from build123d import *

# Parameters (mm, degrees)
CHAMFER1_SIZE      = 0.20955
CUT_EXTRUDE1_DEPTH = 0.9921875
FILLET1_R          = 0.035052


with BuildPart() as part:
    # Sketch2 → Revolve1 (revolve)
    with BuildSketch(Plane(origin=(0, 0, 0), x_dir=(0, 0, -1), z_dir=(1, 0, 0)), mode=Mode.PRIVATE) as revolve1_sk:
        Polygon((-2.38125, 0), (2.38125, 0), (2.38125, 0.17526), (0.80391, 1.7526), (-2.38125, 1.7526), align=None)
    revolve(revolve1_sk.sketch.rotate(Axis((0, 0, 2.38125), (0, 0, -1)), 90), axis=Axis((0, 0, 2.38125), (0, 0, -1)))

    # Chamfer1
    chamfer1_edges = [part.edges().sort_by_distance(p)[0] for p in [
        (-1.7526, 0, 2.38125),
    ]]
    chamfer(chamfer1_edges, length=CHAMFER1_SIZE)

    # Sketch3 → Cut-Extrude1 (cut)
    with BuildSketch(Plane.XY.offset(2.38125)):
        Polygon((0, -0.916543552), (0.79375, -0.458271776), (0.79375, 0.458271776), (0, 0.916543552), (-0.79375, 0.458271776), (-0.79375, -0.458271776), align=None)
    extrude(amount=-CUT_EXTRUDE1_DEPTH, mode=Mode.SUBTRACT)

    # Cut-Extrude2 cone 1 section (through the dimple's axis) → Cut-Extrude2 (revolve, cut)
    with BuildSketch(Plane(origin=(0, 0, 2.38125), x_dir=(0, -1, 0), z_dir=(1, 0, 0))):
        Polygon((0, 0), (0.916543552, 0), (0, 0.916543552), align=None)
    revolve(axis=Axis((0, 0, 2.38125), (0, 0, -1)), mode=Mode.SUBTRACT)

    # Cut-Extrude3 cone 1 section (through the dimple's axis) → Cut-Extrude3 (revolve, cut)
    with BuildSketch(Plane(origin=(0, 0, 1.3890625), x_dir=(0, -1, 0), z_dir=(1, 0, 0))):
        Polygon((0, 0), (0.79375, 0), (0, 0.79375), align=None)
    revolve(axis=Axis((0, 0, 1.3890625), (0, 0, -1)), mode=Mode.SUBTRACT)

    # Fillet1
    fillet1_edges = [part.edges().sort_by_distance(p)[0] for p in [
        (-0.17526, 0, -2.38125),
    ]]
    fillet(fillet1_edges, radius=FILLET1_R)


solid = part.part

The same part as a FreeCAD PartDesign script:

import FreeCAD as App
import Part
import Sketcher
from FreeCAD import Vector
Q = App.Units.Quantity


def edges_at(feature, points):
    """Names of the edges that pass closest to the given points."""
    edges = feature.Shape.Edges
    near = lambda p: min(range(len(edges)), key=lambda i: edges[i].distToShape(Part.Vertex(*p))[0])
    return sorted({f"Edge{near(p) + 1}" for p in points})


def add_polygon(sketch, points):
    """Adds a closed chain of lines whose ends are joined by coincident constraints."""
    first, n = sketch.GeometryCount, len(points)
    for a, b in zip(points, points[1:] + points[:1]):
        sketch.addGeometry(Part.LineSegment(App.Vector(*a, 0), App.Vector(*b, 0)), False)
    for i in range(n):
        sketch.addConstraint(Sketcher.Constraint("Coincident", first + i, 2, first + (i + 1) % n, 1))

doc = App.newDocument("Part")
body = doc.addObject("PartDesign::Body", "Body")

sketch1 = body.newObject("Sketcher::SketchObject", "Sketch")
sketch1.AttachmentSupport = (doc.getObject("YZ_Plane"), [""])
sketch1.MapMode = "FlatFace"
add_polygon(sketch1, [(0, 2.38), (0, -2.38), (0.18, -2.38), (1.75, -0.8), (1.75, 2.38)])
sketch1.addConstraint(Sketcher.Constraint("Vertical", 0))
sketch1.addConstraint(Sketcher.Constraint("Horizontal", 1))
sketch1.addConstraint(Sketcher.Constraint("Vertical", 3))
sketch1.addConstraint(Sketcher.Constraint("Horizontal", 4))
sketch1.addConstraint(Sketcher.Constraint("Symmetric", 0, 2, 4, 2, -1, 1))
sketch1.addConstraint(Sketcher.Constraint("Angle", 2, Q("45 deg")))
sketch1.addConstraint(Sketcher.Constraint("DistanceX", 4, 2, 4, 1, Q("0.069 in")))
sketch1.addConstraint(Sketcher.Constraint("DistanceY", 0, 2, 0, 1, Q("0.1875 in")))
sketch1.addConstraint(Sketcher.Constraint("DistanceX", 1, 1, 1, 2, Q("0.0069 in")))
revolution = body.newObject("PartDesign::Revolution", "Revolution")
revolution.Profile = sketch1
revolution.ReferenceAxis = (sketch1, ["V_Axis"])
revolution.Angle = 360
doc.recompute()

chamfer = body.newObject("PartDesign::Chamfer", "Chamfer")
chamfer.Base = (revolution, edges_at(revolution, [(-1.753, 0, 2.381)]))
chamfer.Size = 0.20955

sketch2 = body.newObject("Sketcher::SketchObject", "Sketch001")
sketch2.AttachmentSupport = (doc.getObject("XY_Plane"), [""])
sketch2.MapMode = "FlatFace"
sketch2.AttachmentOffset = App.Placement(Vector(0, 0, 0.09375 * 25.4), App.Rotation())
add_polygon(sketch2, [(0, -0.9), (0.8, -0.5), (0.8, 0.5), (0, 0.9), (-0.8, 0.5), (-0.8, -0.5)])
sketch2.addConstraint(Sketcher.Constraint("Vertical", 1))
sketch2.addConstraint(Sketcher.Constraint("Vertical", 4))
sketch2.addConstraint(Sketcher.Constraint("Symmetric", 0, 2, 3, 2, -1, 1))
sketch2.addConstraint(Sketcher.Constraint("Symmetric", 2, 2, 5, 2, -1, 1))
sketch2.addConstraint(Sketcher.Constraint("PointOnObject", 2, 2, -2))
sketch2.addConstraint(Sketcher.Constraint("Parallel", 2, 5))
sketch2.addConstraint(Sketcher.Constraint("Horizontal", 1, 2, 3, 2))
sketch2.addConstraint(Sketcher.Constraint("Angle", 0, Q("30 deg")))
sketch2.addConstraint(Sketcher.Constraint("DistanceX", -1, 1, 0, 2, Q("0.03125 in")))
sketch2.addConstraint(Sketcher.Constraint("DistanceY", 1, 1, 1, 2, Q("0.916544 mm")))
pocket1 = body.newObject("PartDesign::Pocket", "Pocket")
pocket1.Profile = sketch2
pocket1.Length = 0.992188

sketch3 = body.newObject("Sketcher::SketchObject", "Sketch002")
sketch3.AttachmentSupport = (doc.getObject("YZ_Plane"), [""])
sketch3.MapMode = "FlatFace"
add_polygon(sketch3, [(0, 2.4), (-0.9, 2.4), (0, 1.5)])
sketch3.addConstraint(Sketcher.Constraint("Horizontal", 0))
sketch3.addConstraint(Sketcher.Constraint("Vertical", 2))
sketch3.addConstraint(Sketcher.Constraint("PointOnObject", 1, 2, -2))
sketch3.addConstraint(Sketcher.Constraint("Equal", 0, 2))
sketch3.addConstraint(Sketcher.Constraint("DistanceY", -1, 1, 0, 2, Q("0.09375 in")))
sketch3.addConstraint(Sketcher.Constraint("Distance", 1, Q("1.296188 mm")))
groove = body.newObject("PartDesign::Groove", "Groove")
groove.Profile = sketch3
groove.ReferenceAxis = (sketch3, ["V_Axis"])
groove.Angle = 360

sketch4 = body.newObject("Sketcher::SketchObject", "Sketch003")
sketch4.AttachmentSupport = (doc.getObject("YZ_Plane"), [""])
sketch4.MapMode = "FlatFace"
add_polygon(sketch4, [(0, 1.4), (-0.8, 1.4), (0, 0.6)])
sketch4.addConstraint(Sketcher.Constraint("Horizontal", 0))
sketch4.addConstraint(Sketcher.Constraint("Vertical", 2))
sketch4.addConstraint(Sketcher.Constraint("PointOnObject", 1, 2, -2))
sketch4.addConstraint(Sketcher.Constraint("Equal", 0, 2))
sketch4.addConstraint(Sketcher.Constraint("DistanceX", 0, 2, 0, 1, Q("0.03125 in")))
sketch4.addConstraint(Sketcher.Constraint("DistanceY", -1, 1, 0, 2, Q("1.389063 mm")))
groove2 = body.newObject("PartDesign::Groove", "Groove001")
groove2.Profile = sketch4
groove2.ReferenceAxis = (sketch4, ["V_Axis"])
groove2.Angle = 360
doc.recompute()

fillet = body.newObject("PartDesign::Fillet", "Fillet")
fillet.Base = (groove2, edges_at(groove2, [(-0.175, 0, -2.381)]))
fillet.Radius = 0.035052

doc.recompute()
